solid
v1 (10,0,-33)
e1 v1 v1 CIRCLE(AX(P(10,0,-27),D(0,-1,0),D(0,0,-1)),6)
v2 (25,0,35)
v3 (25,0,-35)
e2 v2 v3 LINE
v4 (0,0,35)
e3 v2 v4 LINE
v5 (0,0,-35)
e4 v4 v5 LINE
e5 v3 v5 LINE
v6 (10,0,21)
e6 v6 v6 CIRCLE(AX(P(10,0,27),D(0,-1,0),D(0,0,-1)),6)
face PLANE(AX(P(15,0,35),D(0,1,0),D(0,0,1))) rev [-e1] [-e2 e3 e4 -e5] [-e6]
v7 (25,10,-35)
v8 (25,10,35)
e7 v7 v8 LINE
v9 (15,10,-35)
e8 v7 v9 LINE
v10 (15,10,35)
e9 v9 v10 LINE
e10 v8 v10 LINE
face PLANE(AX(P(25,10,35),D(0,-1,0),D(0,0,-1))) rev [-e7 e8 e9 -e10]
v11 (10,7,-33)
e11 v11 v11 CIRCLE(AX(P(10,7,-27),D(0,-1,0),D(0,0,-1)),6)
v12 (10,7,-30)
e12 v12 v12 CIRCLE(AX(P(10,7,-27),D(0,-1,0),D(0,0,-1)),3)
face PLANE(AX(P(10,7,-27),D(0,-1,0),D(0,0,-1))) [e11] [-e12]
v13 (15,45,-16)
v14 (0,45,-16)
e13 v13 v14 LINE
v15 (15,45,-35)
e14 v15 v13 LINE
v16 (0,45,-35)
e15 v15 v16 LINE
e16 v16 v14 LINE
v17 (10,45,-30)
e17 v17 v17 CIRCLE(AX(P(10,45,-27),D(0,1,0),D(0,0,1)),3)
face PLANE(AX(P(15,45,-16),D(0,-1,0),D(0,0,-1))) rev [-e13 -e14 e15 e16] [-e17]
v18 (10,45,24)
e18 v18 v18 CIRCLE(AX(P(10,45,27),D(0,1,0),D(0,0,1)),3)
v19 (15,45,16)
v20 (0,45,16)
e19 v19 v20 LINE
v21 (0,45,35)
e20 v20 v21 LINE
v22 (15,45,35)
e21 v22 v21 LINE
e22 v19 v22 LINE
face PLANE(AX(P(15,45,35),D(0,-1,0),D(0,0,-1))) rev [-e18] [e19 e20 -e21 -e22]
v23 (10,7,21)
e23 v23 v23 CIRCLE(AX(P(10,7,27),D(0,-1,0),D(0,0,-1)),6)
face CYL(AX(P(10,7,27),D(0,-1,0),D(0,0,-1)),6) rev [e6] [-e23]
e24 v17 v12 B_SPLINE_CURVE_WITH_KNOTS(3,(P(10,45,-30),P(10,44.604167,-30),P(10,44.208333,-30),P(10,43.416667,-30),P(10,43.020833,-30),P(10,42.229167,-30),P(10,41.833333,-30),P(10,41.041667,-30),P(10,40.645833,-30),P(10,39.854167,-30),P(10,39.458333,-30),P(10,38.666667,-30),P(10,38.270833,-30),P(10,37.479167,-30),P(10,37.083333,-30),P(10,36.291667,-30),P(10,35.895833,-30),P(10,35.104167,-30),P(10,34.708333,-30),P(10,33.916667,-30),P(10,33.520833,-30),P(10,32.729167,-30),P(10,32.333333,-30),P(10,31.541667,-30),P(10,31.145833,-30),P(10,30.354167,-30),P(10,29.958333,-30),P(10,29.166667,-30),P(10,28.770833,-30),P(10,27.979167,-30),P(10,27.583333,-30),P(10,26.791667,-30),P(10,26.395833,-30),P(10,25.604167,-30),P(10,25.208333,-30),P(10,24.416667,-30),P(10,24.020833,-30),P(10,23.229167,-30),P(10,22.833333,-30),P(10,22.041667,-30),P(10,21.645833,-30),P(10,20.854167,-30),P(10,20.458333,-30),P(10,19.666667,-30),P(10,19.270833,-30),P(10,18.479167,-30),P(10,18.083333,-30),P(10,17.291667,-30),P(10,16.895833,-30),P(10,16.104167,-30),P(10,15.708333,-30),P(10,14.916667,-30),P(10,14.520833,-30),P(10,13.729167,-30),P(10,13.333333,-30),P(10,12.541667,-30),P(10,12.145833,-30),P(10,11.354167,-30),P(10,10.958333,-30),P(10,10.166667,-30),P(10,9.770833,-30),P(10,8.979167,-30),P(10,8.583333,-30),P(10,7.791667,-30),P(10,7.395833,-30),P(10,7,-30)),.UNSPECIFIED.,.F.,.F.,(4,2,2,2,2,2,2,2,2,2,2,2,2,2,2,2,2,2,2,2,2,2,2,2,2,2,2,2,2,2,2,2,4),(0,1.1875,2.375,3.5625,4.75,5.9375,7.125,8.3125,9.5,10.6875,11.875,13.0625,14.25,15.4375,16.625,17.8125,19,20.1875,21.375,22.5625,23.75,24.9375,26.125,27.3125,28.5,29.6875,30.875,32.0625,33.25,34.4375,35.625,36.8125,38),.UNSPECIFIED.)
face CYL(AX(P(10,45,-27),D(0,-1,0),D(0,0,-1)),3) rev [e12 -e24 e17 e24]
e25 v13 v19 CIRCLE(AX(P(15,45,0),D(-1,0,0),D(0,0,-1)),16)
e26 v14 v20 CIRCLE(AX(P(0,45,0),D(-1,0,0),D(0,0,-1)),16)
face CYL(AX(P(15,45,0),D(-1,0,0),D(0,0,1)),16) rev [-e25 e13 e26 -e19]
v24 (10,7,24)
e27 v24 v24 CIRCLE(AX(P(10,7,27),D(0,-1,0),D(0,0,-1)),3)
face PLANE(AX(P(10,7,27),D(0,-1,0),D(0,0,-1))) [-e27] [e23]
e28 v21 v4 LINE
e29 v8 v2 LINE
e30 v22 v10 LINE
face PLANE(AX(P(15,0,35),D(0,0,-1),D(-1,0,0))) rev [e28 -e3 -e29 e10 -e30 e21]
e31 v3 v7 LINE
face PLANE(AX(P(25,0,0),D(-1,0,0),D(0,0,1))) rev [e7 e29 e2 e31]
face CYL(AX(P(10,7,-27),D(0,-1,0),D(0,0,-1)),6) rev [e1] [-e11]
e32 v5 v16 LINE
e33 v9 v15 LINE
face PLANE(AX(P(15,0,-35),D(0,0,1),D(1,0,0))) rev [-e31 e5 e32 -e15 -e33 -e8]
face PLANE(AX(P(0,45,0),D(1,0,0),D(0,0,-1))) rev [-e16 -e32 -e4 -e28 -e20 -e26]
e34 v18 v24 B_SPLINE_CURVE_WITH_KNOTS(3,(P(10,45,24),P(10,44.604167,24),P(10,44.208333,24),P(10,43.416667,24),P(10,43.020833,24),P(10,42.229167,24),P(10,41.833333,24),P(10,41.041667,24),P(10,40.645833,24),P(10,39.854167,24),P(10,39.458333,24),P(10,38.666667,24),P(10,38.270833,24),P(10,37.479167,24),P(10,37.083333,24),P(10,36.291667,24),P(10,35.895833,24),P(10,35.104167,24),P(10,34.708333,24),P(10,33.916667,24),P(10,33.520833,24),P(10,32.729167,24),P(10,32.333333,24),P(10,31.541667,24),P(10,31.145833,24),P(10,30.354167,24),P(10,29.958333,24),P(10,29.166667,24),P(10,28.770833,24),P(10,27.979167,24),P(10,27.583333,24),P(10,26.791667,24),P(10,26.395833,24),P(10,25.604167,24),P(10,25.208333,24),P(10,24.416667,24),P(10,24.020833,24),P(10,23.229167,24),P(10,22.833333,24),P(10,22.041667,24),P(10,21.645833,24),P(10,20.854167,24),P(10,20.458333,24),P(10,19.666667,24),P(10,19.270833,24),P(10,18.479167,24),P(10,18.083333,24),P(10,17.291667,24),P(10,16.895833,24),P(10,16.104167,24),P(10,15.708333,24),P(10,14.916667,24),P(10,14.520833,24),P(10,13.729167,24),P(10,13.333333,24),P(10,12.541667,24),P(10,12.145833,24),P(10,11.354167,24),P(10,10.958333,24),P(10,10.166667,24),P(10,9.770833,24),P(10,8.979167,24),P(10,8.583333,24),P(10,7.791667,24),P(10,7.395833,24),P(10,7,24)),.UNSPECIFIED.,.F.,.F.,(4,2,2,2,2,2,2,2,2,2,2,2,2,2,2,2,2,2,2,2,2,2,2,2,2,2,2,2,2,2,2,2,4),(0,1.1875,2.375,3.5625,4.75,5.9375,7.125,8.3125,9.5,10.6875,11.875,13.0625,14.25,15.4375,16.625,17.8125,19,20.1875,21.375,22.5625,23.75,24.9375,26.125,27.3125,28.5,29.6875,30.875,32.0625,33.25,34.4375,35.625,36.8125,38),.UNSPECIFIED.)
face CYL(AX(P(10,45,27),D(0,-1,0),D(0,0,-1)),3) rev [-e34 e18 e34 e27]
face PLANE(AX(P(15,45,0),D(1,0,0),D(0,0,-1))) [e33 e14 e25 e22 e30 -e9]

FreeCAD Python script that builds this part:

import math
import FreeCAD as App
import Part
import Sketcher
from FreeCAD import Vector

doc = App.newDocument("Part")
body = doc.addObject("PartDesign::Body", "Body")

# Sketch on YZ plane
sketch1 = doc.addObject("Sketcher::SketchObject", "Sketch")
body.addObject(sketch1)
sketch1.AttachmentSupport = (doc.YZ_Plane, [""])
sketch1.MapMode = "FlatFace"
sketch1.addGeometry(Part.LineSegment(Vector(45, -35, 0), Vector(45, -16, 0)), False)
sketch1.addGeometry(Part.ArcOfCircle(Part.Circle(Vector(45, 0, 0), Vector(0, 0, 1), 16), math.radians(90), math.radians(270)), False)
sketch1.addGeometry(Part.LineSegment(Vector(45, 16, 0), Vector(45, 35, 0)), False)
sketch1.addGeometry(Part.LineSegment(Vector(45, 35, 0), Vector(0, 35, 0)), False)
sketch1.addGeometry(Part.LineSegment(Vector(0, 35, 0), Vector(0, -35, 0)), False)
sketch1.addGeometry(Part.LineSegment(Vector(0, -35, 0), Vector(45, -35, 0)), False)
sketch1.addConstraint(Sketcher.Constraint("Coincident", 0, 2, 1, 2))
sketch1.addConstraint(Sketcher.Constraint("Coincident", 1, 1, 2, 1))
sketch1.addConstraint(Sketcher.Constraint("Coincident", 2, 2, 3, 1))
sketch1.addConstraint(Sketcher.Constraint("Coincident", 3, 2, 4, 1))
sketch1.addConstraint(Sketcher.Constraint("Coincident", 4, 2, 5, 1))
sketch1.addConstraint(Sketcher.Constraint("Coincident", 5, 2, 0, 1))
sketch1.addConstraint(Sketcher.Constraint("Vertical", 0))
sketch1.addConstraint(Sketcher.Constraint("Vertical", 2))
sketch1.addConstraint(Sketcher.Constraint("Horizontal", 3))
sketch1.addConstraint(Sketcher.Constraint("Vertical", 4))
sketch1.addConstraint(Sketcher.Constraint("Horizontal", 5))
sketch1.addConstraint(Sketcher.Constraint("Symmetric", 3, 2, 4, 2, -1, 1))
sketch1.addConstraint(Sketcher.Constraint("Symmetric", 0, 2, 1, 1, -1))
sketch1.addConstraint(Sketcher.Constraint("Vertical", 1, 3, 0, 2))
sketch1.addConstraint(Sketcher.Constraint("Radius", 1, 16.0))
sketch1.addConstraint(Sketcher.Constraint("DistanceX", 3, 2, 3, 1, 45.0))
sketch1.addConstraint(Sketcher.Constraint("DistanceY", 0, 1, 0, 2, 19.0))
pad1 = doc.addObject("PartDesign::Pad", "Pad")
body.addObject(pad1)
pad1.Profile = sketch1
pad1.Length = 15

# Sketch on XZ plane
sketch2 = doc.addObject("Sketcher::SketchObject", "Sketch001")
body.addObject(sketch2)
sketch2.AttachmentSupport = (doc.XZ_Plane, [""])
sketch2.MapMode = "FlatFace"
sketch2.addGeometry(Part.Circle(Vector(10, 27, 0), Vector(0, 0, 1), 3), False)
sketch2.addGeometry(Part.Circle(Vector(10, -27, 0), Vector(0, 0, 1), 3), False)
sketch2.addConstraint(Sketcher.Constraint("Equal", 0, 1))
sketch2.addConstraint(Sketcher.Constraint("Symmetric", 0, 3, 1, 3, -1))
sketch2.addConstraint(Sketcher.Constraint("Diameter", 0, 6.0))
sketch2.addConstraint(Sketcher.Constraint("DistanceX", -1, 1, 0, 3, 10.0))
sketch2.addConstraint(Sketcher.Constraint("DistanceY", -1, 1, 0, 3, 27.0))
pocket1 = doc.addObject("PartDesign::Pocket", "Pocket")
body.addObject(pocket1)
pocket1.Profile = sketch2
pocket1.Type = "ThroughAll"

# Sketch on YZ plane
sketch3 = doc.addObject("Sketcher::SketchObject", "Sketch002")
body.addObject(sketch3)
sketch3.AttachmentSupport = (doc.YZ_Plane, [""])
sketch3.MapMode = "FlatFace"
sketch3.AttachmentOffset = App.Placement(Vector(0, 0, 15), App.Rotation())
sketch3.addGeometry(Part.LineSegment(Vector(10, 35, 0), Vector(0, 35, 0)), False)
sketch3.addGeometry(Part.LineSegment(Vector(0, 35, 0), Vector(0, -35, 0)), False)
sketch3.addGeometry(Part.LineSegment(Vector(0, -35, 0), Vector(10, -35, 0)), False)
sketch3.addGeometry(Part.LineSegment(Vector(10, -35, 0), Vector(10, 35, 0)), False)
sketch3.addConstraint(Sketcher.Constraint("Coincident", 0, 2, 1, 1))
sketch3.addConstraint(Sketcher.Constraint("Coincident", 1, 2, 2, 1))
sketch3.addConstraint(Sketcher.Constraint("Coincident", 2, 2, 3, 1))
sketch3.addConstraint(Sketcher.Constraint("Coincident", 3, 2, 0, 1))
sketch3.addConstraint(Sketcher.Constraint("Horizontal", 0))
sketch3.addConstraint(Sketcher.Constraint("Vertical", 1))
sketch3.addConstraint(Sketcher.Constraint("Horizontal", 2))
sketch3.addConstraint(Sketcher.Constraint("Vertical", 3))
sketch3.addConstraint(Sketcher.Constraint("Symmetric", 0, 2, 1, 2, -1, 1))
sketch3.addConstraint(Sketcher.Constraint("DistanceX", 0, 2, 0, 1, 10.0))
sketch3.addConstraint(Sketcher.Constraint("DistanceY", 1, 2, 1, 1, 70.0))
pad2 = doc.addObject("PartDesign::Pad", "Pad001")
body.addObject(pad2)
pad2.Profile = sketch3
pad2.Length = 10

# Sketch on XZ plane
sketch4 = doc.addObject("Sketcher::SketchObject", "Sketch003")
body.addObject(sketch4)
sketch4.AttachmentSupport = (doc.XZ_Plane, [""])
sketch4.MapMode = "FlatFace"
sketch4.addGeometry(Part.Circle(Vector(10, 27, 0), Vector(0, 0, 1), 6), False)
sketch4.addGeometry(Part.Circle(Vector(10, -27, 0), Vector(0, 0, 1), 6), False)
sketch4.addConstraint(Sketcher.Constraint("Equal", 0, 1))
sketch4.addConstraint(Sketcher.Constraint("Symmetric", 0, 3, 1, 3, -1))
sketch4.addConstraint(Sketcher.Constraint("Diameter", 0, 12.0))
sketch4.addConstraint(Sketcher.Constraint("DistanceX", -1, 1, 0, 3, 10.0))
sketch4.addConstraint(Sketcher.Constraint("DistanceY", -1, 1, 0, 3, 27.0))
pocket2 = doc.addObject("PartDesign::Pocket", "Pocket001")
body.addObject(pocket2)
pocket2.Profile = sketch4
pocket2.Length = 7

doc.recompute()
